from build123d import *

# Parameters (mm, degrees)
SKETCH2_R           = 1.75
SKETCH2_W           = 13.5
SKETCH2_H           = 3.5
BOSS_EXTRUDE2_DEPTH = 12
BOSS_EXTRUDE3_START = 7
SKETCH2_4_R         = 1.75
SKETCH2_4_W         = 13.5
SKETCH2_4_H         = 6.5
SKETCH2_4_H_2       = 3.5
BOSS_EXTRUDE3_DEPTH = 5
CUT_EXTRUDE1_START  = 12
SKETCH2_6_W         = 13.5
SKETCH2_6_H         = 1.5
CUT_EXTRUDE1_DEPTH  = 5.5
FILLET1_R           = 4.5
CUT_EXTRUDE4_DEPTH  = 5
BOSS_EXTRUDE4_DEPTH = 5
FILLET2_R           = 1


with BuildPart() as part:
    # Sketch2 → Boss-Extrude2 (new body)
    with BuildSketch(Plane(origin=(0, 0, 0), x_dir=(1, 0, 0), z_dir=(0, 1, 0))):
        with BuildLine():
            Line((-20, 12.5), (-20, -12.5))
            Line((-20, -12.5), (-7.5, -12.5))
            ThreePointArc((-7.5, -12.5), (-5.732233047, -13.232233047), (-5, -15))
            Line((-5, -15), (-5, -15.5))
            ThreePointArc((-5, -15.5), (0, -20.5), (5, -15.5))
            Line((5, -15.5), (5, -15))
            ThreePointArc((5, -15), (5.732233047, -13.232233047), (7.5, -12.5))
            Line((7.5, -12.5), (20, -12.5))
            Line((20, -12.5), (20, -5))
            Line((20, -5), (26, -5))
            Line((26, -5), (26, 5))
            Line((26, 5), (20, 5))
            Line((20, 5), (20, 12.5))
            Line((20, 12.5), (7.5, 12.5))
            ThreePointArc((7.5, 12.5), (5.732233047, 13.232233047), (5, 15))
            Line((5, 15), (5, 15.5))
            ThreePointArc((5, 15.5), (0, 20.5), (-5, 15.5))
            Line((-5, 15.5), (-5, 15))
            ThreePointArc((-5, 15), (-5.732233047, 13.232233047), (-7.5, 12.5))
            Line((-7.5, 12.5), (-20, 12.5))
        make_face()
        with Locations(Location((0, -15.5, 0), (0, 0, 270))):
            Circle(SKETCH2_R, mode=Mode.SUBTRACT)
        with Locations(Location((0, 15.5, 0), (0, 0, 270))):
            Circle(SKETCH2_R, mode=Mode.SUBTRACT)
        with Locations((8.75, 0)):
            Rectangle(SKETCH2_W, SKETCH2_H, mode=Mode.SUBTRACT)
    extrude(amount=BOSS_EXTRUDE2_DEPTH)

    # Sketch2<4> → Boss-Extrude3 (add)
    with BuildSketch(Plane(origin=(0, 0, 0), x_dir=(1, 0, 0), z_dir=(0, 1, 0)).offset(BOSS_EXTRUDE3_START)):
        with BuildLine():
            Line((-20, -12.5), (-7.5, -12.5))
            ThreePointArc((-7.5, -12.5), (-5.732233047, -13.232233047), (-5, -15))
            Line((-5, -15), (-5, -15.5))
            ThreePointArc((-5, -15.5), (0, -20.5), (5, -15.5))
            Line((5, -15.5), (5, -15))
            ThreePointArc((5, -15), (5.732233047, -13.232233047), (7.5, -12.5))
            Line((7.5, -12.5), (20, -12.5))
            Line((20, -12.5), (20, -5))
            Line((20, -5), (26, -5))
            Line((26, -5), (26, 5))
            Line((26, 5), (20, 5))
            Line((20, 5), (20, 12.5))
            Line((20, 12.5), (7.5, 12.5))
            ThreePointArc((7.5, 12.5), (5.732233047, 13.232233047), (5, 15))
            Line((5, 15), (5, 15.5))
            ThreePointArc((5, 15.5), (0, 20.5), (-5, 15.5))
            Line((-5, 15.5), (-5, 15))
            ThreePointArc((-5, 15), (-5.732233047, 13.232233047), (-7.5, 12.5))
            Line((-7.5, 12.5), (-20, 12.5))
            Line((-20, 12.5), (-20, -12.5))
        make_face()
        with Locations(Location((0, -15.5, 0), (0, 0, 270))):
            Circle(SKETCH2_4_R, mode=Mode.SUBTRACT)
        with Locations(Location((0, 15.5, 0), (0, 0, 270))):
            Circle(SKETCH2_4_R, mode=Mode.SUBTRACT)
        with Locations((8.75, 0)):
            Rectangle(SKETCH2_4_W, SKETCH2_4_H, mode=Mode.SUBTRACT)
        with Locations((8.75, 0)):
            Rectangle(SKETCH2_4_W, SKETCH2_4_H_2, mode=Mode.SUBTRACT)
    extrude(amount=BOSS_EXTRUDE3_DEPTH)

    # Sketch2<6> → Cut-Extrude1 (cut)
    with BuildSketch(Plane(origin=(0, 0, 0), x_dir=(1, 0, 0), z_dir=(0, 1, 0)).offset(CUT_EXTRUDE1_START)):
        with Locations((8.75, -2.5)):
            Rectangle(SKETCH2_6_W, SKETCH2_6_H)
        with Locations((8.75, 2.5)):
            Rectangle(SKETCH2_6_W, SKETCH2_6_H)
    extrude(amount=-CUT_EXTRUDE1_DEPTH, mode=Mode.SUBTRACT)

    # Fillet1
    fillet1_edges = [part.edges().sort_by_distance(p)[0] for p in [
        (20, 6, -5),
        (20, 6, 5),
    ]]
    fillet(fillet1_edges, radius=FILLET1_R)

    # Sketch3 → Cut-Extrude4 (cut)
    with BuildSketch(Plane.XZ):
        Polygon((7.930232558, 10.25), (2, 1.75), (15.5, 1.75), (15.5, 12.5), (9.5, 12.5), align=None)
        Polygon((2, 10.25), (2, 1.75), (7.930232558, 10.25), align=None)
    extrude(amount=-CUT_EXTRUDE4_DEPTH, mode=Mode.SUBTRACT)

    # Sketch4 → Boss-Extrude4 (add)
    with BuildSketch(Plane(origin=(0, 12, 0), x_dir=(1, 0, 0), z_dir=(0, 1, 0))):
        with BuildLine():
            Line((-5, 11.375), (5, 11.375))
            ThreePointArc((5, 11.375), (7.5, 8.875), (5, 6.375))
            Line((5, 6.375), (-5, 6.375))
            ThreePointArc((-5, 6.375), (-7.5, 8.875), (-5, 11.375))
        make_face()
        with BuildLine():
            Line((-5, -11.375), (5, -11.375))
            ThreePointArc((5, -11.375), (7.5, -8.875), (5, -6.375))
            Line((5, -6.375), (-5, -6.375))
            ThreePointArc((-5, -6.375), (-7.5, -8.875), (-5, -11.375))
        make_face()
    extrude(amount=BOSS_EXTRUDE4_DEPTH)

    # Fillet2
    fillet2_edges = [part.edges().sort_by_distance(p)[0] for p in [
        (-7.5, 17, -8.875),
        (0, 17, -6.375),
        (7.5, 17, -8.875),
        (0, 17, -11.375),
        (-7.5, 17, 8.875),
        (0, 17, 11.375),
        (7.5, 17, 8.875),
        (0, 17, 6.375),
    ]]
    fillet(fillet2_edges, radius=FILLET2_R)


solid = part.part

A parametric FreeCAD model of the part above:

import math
import FreeCAD as App
import Part
import Sketcher
from FreeCAD import Vector


def edges_at(feature, points):
    """Names of the edges that pass closest to the given points."""
    edges = feature.Shape.Edges
    near = lambda p: min(range(len(edges)), key=lambda i: edges[i].distToShape(Part.Vertex(*p))[0])
    return sorted({f"Edge{near(p) + 1}" for p in points})

doc = App.newDocument("Part")
body = doc.addObject("PartDesign::Body", "Body")

# Sketch on XZ plane
sketch1 = doc.addObject("Sketcher::SketchObject", "Sketch")
body.addObject(sketch1)
sketch1.AttachmentSupport = (doc.XZ_Plane, [""])
sketch1.MapMode = "FlatFace"
sketch1.addGeometry(Part.LineSegment(Vector(-20, -12.5, 0), Vector(-20, 12.5, 0)), False)
sketch1.addGeometry(Part.LineSegment(Vector(-20, 12.5, 0), Vector(-7.5, 12.5, 0)), False)
sketch1.addGeometry(Part.ArcOfCircle(Part.Circle(Vector(-7.5, 15, 0), Vector(0, 0, 1), 2.5), math.radians(-90), math.radians(0)), False)
sketch1.addGeometry(Part.LineSegment(Vector(-5, 15, 0), Vector(-5, 15.5, 0)), False)
sketch1.addGeometry(Part.ArcOfCircle(Part.Circle(Vector(0, 15.5, 0), Vector(0, 0, 1), 5), math.radians(0), math.radians(180)), False)
sketch1.addGeometry(Part.LineSegment(Vector(5, 15.5, 0), Vector(5, 15, 0)), False)
sketch1.addGeometry(Part.ArcOfCircle(Part.Circle(Vector(7.5, 15, 0), Vector(0, 0, 1), 2.5), math.radians(180), math.radians(270)), False)
sketch1.addGeometry(Part.LineSegment(Vector(7.5, 12.5, 0), Vector(20, 12.5, 0)), False)
sketch1.addGeometry(Part.LineSegment(Vector(20, 12.5, 0), Vector(20, 5, 0)), False)
sketch1.addGeometry(Part.LineSegment(Vector(20, 5, 0), Vector(26, 5, 0)), False)
sketch1.addGeometry(Part.LineSegment(Vector(26, 5, 0), Vector(26, -5, 0)), False)
sketch1.addGeometry(Part.LineSegment(Vector(26, -5, 0), Vector(20, -5, 0)), False)
sketch1.addGeometry(Part.LineSegment(Vector(20, -5, 0), Vector(20, -12.5, 0)), False)
sketch1.addGeometry(Part.LineSegment(Vector(20, -12.5, 0), Vector(7.5, -12.5, 0)), False)
sketch1.addGeometry(Part.ArcOfCircle(Part.Circle(Vector(7.5, -15, 0), Vector(0, 0, 1), 2.5), math.radians(90), math.radians(180)), False)
sketch1.addGeometry(Part.LineSegment(Vector(5, -15, 0), Vector(5, -15.5, 0)), False)
sketch1.addGeometry(Part.ArcOfCircle(Part.Circle(Vector(0, -15.5, 0), Vector(0, 0, 1), 5), math.radians(180), math.radians(360)), False)
sketch1.addGeometry(Part.LineSegment(Vector(-5, -15.5, 0), Vector(-5, -15, 0)), False)
sketch1.addGeometry(Part.ArcOfCircle(Part.Circle(Vector(-7.5, -15, 0), Vector(0, 0, 1), 2.5), math.radians(0), math.radians(90)), False)
sketch1.addGeometry(Part.LineSegment(Vector(-7.5, -12.5, 0), Vector(-20, -12.5, 0)), False)
sketch1.addGeometry(Part.Circle(Vector(0, 15.5, 0), Vector(0, 0, 1), 1.8), False)
sketch1.addGeometry(Part.Circle(Vector(0, -15.5, 0), Vector(0, 0, 1), 1.8), False)
sketch1.addGeometry(Part.LineSegment(Vector(15.5, 1.8, 0), Vector(2, 1.8, 0)), False)
sketch1.addGeometry(Part.LineSegment(Vector(2, 1.8, 0), Vector(2, -1.8, 0)), False)
sketch1.addGeometry(Part.LineSegment(Vector(2, -1.8, 0), Vector(15.5, -1.8, 0)), False)
sketch1.addGeometry(Part.LineSegment(Vector(15.5, -1.8, 0), Vector(15.5, 1.8, 0)), False)
sketch1.addConstraint(Sketcher.Constraint("Coincident", 0, 2, 1, 1))
sketch1.addConstraint(Sketcher.Constraint("Tangent", 1, 2, 2, 1))
sketch1.addConstraint(Sketcher.Constraint("Tangent", 2, 2, 3, 1))
sketch1.addConstraint(Sketcher.Constraint("Tangent", 3, 2, 4, 2))
sketch1.addConstraint(Sketcher.Constraint("Tangent", 4, 1, 5, 1))
sketch1.addConstraint(Sketcher.Constraint("Tangent", 5, 2, 6, 1))
sketch1.addConstraint(Sketcher.Constraint("Tangent", 6, 2, 7, 1))
sketch1.addConstraint(Sketcher.Constraint("Coincident", 7, 2, 8, 1))
sketch1.addConstraint(Sketcher.Constraint("Coincident", 8, 2, 9, 1))
sketch1.addConstraint(Sketcher.Constraint("Coincident", 9, 2, 10, 1))
sketch1.addConstraint(Sketcher.Constraint("Coincident", 10, 2, 11, 1))
sketch1.addConstraint(Sketcher.Constraint("Coincident", 11, 2, 12, 1))
sketch1.addConstraint(Sketcher.Constraint("Coincident", 12, 2, 13, 1))
sketch1.addConstraint(Sketcher.Constraint("Tangent", 13, 2, 14, 1))
sketch1.addConstraint(Sketcher.Constraint("Tangent", 14, 2, 15, 1))
sketch1.addConstraint(Sketcher.Constraint("Tangent", 15, 2, 16, 2))
sketch1.addConstraint(Sketcher.Constraint("Tangent", 16, 1, 17, 1))
sketch1.addConstraint(Sketcher.Constraint("Tangent", 17, 2, 18, 1))
sketch1.addConstraint(Sketcher.Constraint("Tangent", 18, 2, 19, 1))
sketch1.addConstraint(Sketcher.Constraint("Coincident", 19, 2, 0, 1))
sketch1.addConstraint(Sketcher.Constraint("Coincident", 22, 2, 23, 1))
sketch1.addConstraint(Sketcher.Constraint("Coincident", 23, 2, 24, 1))
sketch1.addConstraint(Sketcher.Constraint("Coincident", 24, 2, 25, 1))
sketch1.addConstraint(Sketcher.Constraint("Coincident", 25, 2, 22, 1))
sketch1.addConstraint(Sketcher.Constraint("Vertical", 0))
sketch1.addConstraint(Sketcher.Constraint("Horizontal", 1))
sketch1.addConstraint(Sketcher.Constraint("Vertical", 3))
sketch1.addConstraint(Sketcher.Constraint("Vertical", 5))
sketch1.addConstraint(Sketcher.Constraint("Horizontal", 7))
sketch1.addConstraint(Sketcher.Constraint("Vertical", 8))
sketch1.addConstraint(Sketcher.Constraint("Horizontal", 9))
sketch1.addConstraint(Sketcher.Constraint("Vertical", 10))
sketch1.addConstraint(Sketcher.Constraint("Horizontal", 11))
sketch1.addConstraint(Sketcher.Constraint("Vertical", 12))
sketch1.addConstraint(Sketcher.Constraint("Horizontal", 13))
sketch1.addConstraint(Sketcher.Constraint("Vertical", 15))
sketch1.addConstraint(Sketcher.Constraint("Vertical", 17))
sketch1.addConstraint(Sketcher.Constraint("Horizontal", 19))
sketch1.addConstraint(Sketcher.Constraint("Horizontal", 22))
sketch1.addConstraint(Sketcher.Constraint("Vertical", 23))
sketch1.addConstraint(Sketcher.Constraint("Horizontal", 24))
sketch1.addConstraint(Sketcher.Constraint("Vertical", 25))
sketch1.addConstraint(Sketcher.Constraint("Coincident", 20, 3, 4, 3))
sketch1.addConstraint(Sketcher.Constraint("Coincident", 21, 3, 16, 3))
sketch1.addConstraint(Sketcher.Constraint("Equal", 2, 6))
sketch1.addConstraint(Sketcher.Constraint("Equal", 6, 14))
sketch1.addConstraint(Sketcher.Constraint("Equal", 4, 16))
sketch1.addConstraint(Sketcher.Constraint("Equal", 14, 18))
sketch1.addConstraint(Sketcher.Constraint("Equal", 20, 21))
sketch1.addConstraint(Sketcher.Constraint("Symmetric", 2, 3, 14, 3, -1, 1))
sketch1.addConstraint(Sketcher.Constraint("Symmetric", 7, 2, 19, 2, -1, 1))
sketch1.addConstraint(Sketcher.Constraint("Symmetric", 2, 3, 6, 3, -2))
sketch1.addConstraint(Sketcher.Constraint("Symmetric", 8, 2, 11, 2, -1))
sketch1.addConstraint(Sketcher.Constraint("Equal", 5, 15))
sketch1.addConstraint(Sketcher.Constraint("Radius", 4, 5.0))
sketch1.addConstraint(Sketcher.Constraint("Diameter", 20, 3.5))
sketch1.addConstraint(Sketcher.Constraint("Radius", 2, 2.5))
sketch1.addConstraint(Sketcher.Constraint("DistanceX", 9, 1, 9, 2, 6.0))
sketch1.addConstraint(Sketcher.Constraint("DistanceY", 0, 1, 0, 2, 25.0))
sketch1.addConstraint(Sketcher.Constraint("DistanceY", 10, 2, 10, 1, 10.0))
sketch1.addConstraint(Sketcher.Constraint("DistanceX", 1, 1, 1, 2, 12.5))
sketch1.addConstraint(Sketcher.Constraint("DistanceX", 22, 2, 22, 1, 13.5))
sketch1.addConstraint(Sketcher.Constraint("DistanceY", 3, 1, 3, 2, 0.5))
sketch1.addConstraint(Sketcher.Constraint("DistanceY", 23, 2, 23, 1, 3.5))
sketch1.addConstraint(Sketcher.Constraint("DistanceX", -1, 1, 22, 2, 2.0))
sketch1.addConstraint(Sketcher.Constraint("DistanceY", -1, 1, 22, 2, 1.75))
pad1 = doc.addObject("PartDesign::Pad", "Pad")
body.addObject(pad1)
pad1.Profile = sketch1
pad1.Length = 12
pad1.Reversed = True

# Sketch on XZ plane
sketch2 = doc.addObject("Sketcher::SketchObject", "Sketch001")
body.addObject(sketch2)
sketch2.AttachmentSupport = (doc.XZ_Plane, [""])
sketch2.MapMode = "FlatFace"
sketch2.AttachmentOffset = App.Placement(Vector(0, 0, -7), App.Rotation())
sketch2.addGeometry(Part.LineSegment(Vector(-20, 12.5, 0), Vector(-7.5, 12.5, 0)), False)
sketch2.addGeometry(Part.ArcOfCircle(Part.Circle(Vector(-7.5, 15, 0), Vector(0, 0, 1), 2.5), math.radians(-90), math.radians(0)), False)
sketch2.addGeometry(Part.LineSegment(Vector(-5, 15, 0), Vector(-5, 15.5, 0)), False)
sketch2.addGeometry(Part.ArcOfCircle(Part.Circle(Vector(0, 15.5, 0), Vector(0, 0, 1), 5), math.radians(0), math.radians(180)), False)
sketch2.addGeometry(Part.LineSegment(Vector(5, 15.5, 0), Vector(5, 15, 0)), False)
sketch2.addGeometry(Part.ArcOfCircle(Part.Circle(Vector(7.5, 15, 0), Vector(0, 0, 1), 2.5), math.radians(180), math.radians(270)), False)
sketch2.addGeometry(Part.LineSegment(Vector(7.5, 12.5, 0), Vector(20, 12.5, 0)), False)
sketch2.addGeometry(Part.LineSegment(Vector(20, 12.5, 0), Vector(20, 5, 0)), False)
sketch2.addGeometry(Part.LineSegment(Vector(20, 5, 0), Vector(26, 5, 0)), False)
sketch2.addGeometry(Part.LineSegment(Vector(26, 5, 0), Vector(26, -5, 0)), False)
sketch2.addGeometry(Part.LineSegment(Vector(26, -5, 0), Vector(20, -5, 0)), False)
sketch2.addGeometry(Part.LineSegment(Vector(20, -5, 0), Vector(20, -12.5, 0)), False)
sketch2.addGeometry(Part.LineSegment(Vector(20, -12.5, 0), Vector(7.5, -12.5, 0)), False)
sketch2.addGeometry(Part.ArcOfCircle(Part.Circle(Vector(7.5, -15, 0), Vector(0, 0, 1), 2.5), math.radians(90), math.radians(180)), False)
sketch2.addGeometry(Part.LineSegment(Vector(5, -15, 0), Vector(5, -15.5, 0)), False)
sketch2.addGeometry(Part.ArcOfCircle(Part.Circle(Vector(0, -15.5, 0), Vector(0, 0, 1), 5), math.radians(180), math.radians(360)), False)
sketch2.addGeometry(Part.LineSegment(Vector(-5, -15.5, 0), Vector(-5, -15, 0)), False)
sketch2.addGeometry(Part.ArcOfCircle(Part.Circle(Vector(-7.5, -15, 0), Vector(0, 0, 1), 2.5), math.radians(0), math.radians(90)), False)
sketch2.addGeometry(Part.LineSegment(Vector(-7.5, -12.5, 0), Vector(-20, -12.5, 0)), False)
sketch2.addGeometry(Part.LineSegment(Vector(-20, -12.5, 0), Vector(-20, 12.5, 0)), False)
sketch2.addGeometry(Part.Circle(Vector(0, 15.5, 0), Vector(0, 0, 1), 1.8), False)
sketch2.addGeometry(Part.Circle(Vector(0, -15.5, 0), Vector(0, 0, 1), 1.8), False)
sketch2.addGeometry(Part.LineSegment(Vector(15.5, 3.2, 0), Vector(2, 3.2, 0)), False)
sketch2.addGeometry(Part.LineSegment(Vector(2, 3.2, 0), Vector(2, -3.2, 0)), False)
sketch2.addGeometry(Part.LineSegment(Vector(2, -3.2, 0), Vector(15.5, -3.2, 0)), False)
sketch2.addGeometry(Part.LineSegment(Vector(15.5, -3.2, 0), Vector(15.5, 3.2, 0)), False)
sketch2.addConstraint(Sketcher.Constraint("Tangent", 0, 2, 1, 1))
sketch2.addConstraint(Sketcher.Constraint("Tangent", 1, 2, 2, 1))
sketch2.addConstraint(Sketcher.Constraint("Tangent", 2, 2, 3, 2))
sketch2.addConstraint(Sketcher.Constraint("Tangent", 3, 1, 4, 1))
sketch2.addConstraint(Sketcher.Constraint("Tangent", 4, 2, 5, 1))
sketch2.addConstraint(Sketcher.Constraint("Tangent", 5, 2, 6, 1))
sketch2.addConstraint(Sketcher.Constraint("Coincident", 6, 2, 7, 1))
sketch2.addConstraint(Sketcher.Constraint("Coincident", 7, 2, 8, 1))
sketch2.addConstraint(Sketcher.Constraint("Coincident", 8, 2, 9, 1))
sketch2.addConstraint(Sketcher.Constraint("Coincident", 9, 2, 10, 1))
sketch2.addConstraint(Sketcher.Constraint("Coincident", 10, 2, 11, 1))
sketch2.addConstraint(Sketcher.Constraint("Coincident", 11, 2, 12, 1))
sketch2.addConstraint(Sketcher.Constraint("Tangent", 12, 2, 13, 1))
sketch2.addConstraint(Sketcher.Constraint("Tangent", 13, 2, 14, 1))
sketch2.addConstraint(Sketcher.Constraint("Tangent", 14, 2, 15, 2))
sketch2.addConstraint(Sketcher.Constraint("Tangent", 15, 1, 16, 1))
sketch2.addConstraint(Sketcher.Constraint("Tangent", 16, 2, 17, 1))
sketch2.addConstraint(Sketcher.Constraint("Tangent", 17, 2, 18, 1))
sketch2.addConstraint(Sketcher.Constraint("Coincident", 18, 2, 19, 1))
sketch2.addConstraint(Sketcher.Constraint("Coincident", 19, 2, 0, 1))
sketch2.addConstraint(Sketcher.Constraint("Coincident", 22, 2, 23, 1))
sketch2.addConstraint(Sketcher.Constraint("Coincident", 23, 2, 24, 1))
sketch2.addConstraint(Sketcher.Constraint("Coincident", 24, 2, 25, 1))
sketch2.addConstraint(Sketcher.Constraint("Coincident", 25, 2, 22, 1))
sketch2.addConstraint(Sketcher.Constraint("Horizontal", 0))
sketch2.addConstraint(Sketcher.Constraint("Vertical", 2))
sketch2.addConstraint(Sketcher.Constraint("Vertical", 4))
sketch2.addConstraint(Sketcher.Constraint("Horizontal", 6))
sketch2.addConstraint(Sketcher.Constraint("Vertical", 7))
sketch2.addConstraint(Sketcher.Constraint("Horizontal", 8))
sketch2.addConstraint(Sketcher.Constraint("Vertical", 9))
sketch2.addConstraint(Sketcher.Constraint("Horizontal", 10))
sketch2.addConstraint(Sketcher.Constraint("Vertical", 11))
sketch2.addConstraint(Sketcher.Constraint("Horizontal", 12))
sketch2.addConstraint(Sketcher.Constraint("Vertical", 14))
sketch2.addConstraint(Sketcher.Constraint("Vertical", 16))
sketch2.addConstraint(Sketcher.Constraint("Horizontal", 18))
sketch2.addConstraint(Sketcher.Constraint("Vertical", 19))
sketch2.addConstraint(Sketcher.Constraint("Horizontal", 22))
sketch2.addConstraint(Sketcher.Constraint("Vertical", 23))
sketch2.addConstraint(Sketcher.Constraint("Horizontal", 24))
sketch2.addConstraint(Sketcher.Constraint("Vertical", 25))
sketch2.addConstraint(Sketcher.Constraint("Coincident", 20, 3, 3, 3))
sketch2.addConstraint(Sketcher.Constraint("Coincident", 21, 3, 15, 3))
sketch2.addConstraint(Sketcher.Constraint("Equal", 1, 5))
sketch2.addConstraint(Sketcher.Constraint("Equal", 5, 13))
sketch2.addConstraint(Sketcher.Constraint("Equal", 3, 15))
sketch2.addConstraint(Sketcher.Constraint("Equal", 13, 17))
sketch2.addConstraint(Sketcher.Constraint("Equal", 20, 21))
sketch2.addConstraint(Sketcher.Constraint("Symmetric", 1, 3, 13, 3, -1, 1))
sketch2.addConstraint(Sketcher.Constraint("Symmetric", 6, 2, 18, 2, -1, 1))
sketch2.addConstraint(Sketcher.Constraint("Symmetric", 1, 3, 5, 3, -2))
sketch2.addConstraint(Sketcher.Constraint("Symmetric", 7, 2, 10, 2, -1))
sketch2.addConstraint(Sketcher.Constraint("Equal", 4, 14))
sketch2.addConstraint(Sketcher.Constraint("Radius", 3, 5.0))
sketch2.addConstraint(Sketcher.Constraint("Diameter", 20, 3.5))
sketch2.addConstraint(Sketcher.Constraint("Radius", 1, 2.5))
sketch2.addConstraint(Sketcher.Constraint("DistanceX", 8, 1, 8, 2, 6.0))
sketch2.addConstraint(Sketcher.Constraint("DistanceY", 9, 2, 9, 1, 10.0))
sketch2.addConstraint(Sketcher.Constraint("DistanceY", 19, 1, 19, 2, 25.0))
sketch2.addConstraint(Sketcher.Constraint("DistanceX", 0, 1, 0, 2, 12.5))
sketch2.addConstraint(Sketcher.Constraint("DistanceX", 22, 2, 22, 1, 13.5))
sketch2.addConstraint(Sketcher.Constraint("DistanceY", 2, 1, 2, 2, 0.5))
sketch2.addConstraint(Sketcher.Constraint("DistanceY", 23, 2, 23, 1, 6.5))
sketch2.addConstraint(Sketcher.Constraint("DistanceX", -1, 1, 22, 2, 2.0))
sketch2.addConstraint(Sketcher.Constraint("DistanceY", -1, 1, 22, 2, 3.25))
pad2 = doc.addObject("PartDesign::Pad", "Pad001")
body.addObject(pad2)
pad2.Profile = sketch2
pad2.Length = 5
pad2.Reversed = True

# Sketch on XZ plane
sketch3 = doc.addObject("Sketcher::SketchObject", "Sketch002")
body.addObject(sketch3)
sketch3.AttachmentSupport = (doc.XZ_Plane, [""])
sketch3.MapMode = "FlatFace"
sketch3.AttachmentOffset = App.Placement(Vector(0, 0, -12), App.Rotation())
sketch3.addGeometry(Part.LineSegment(Vector(2, 1.8, 0), Vector(2, 3.2, 0)), False)
sketch3.addGeometry(Part.LineSegment(Vector(2, 3.2, 0), Vector(15.5, 3.2, 0)), False)
sketch3.addGeometry(Part.LineSegment(Vector(15.5, 3.2, 0), Vector(15.5, 1.8, 0)), False)
sketch3.addGeometry(Part.LineSegment(Vector(15.5, 1.8, 0), Vector(2, 1.8, 0)), False)
sketch3.addGeometry(Part.LineSegment(Vector(2, -3.2, 0), Vector(2, -1.8, 0)), False)
sketch3.addGeometry(Part.LineSegment(Vector(2, -1.8, 0), Vector(15.5, -1.8, 0)), False)
sketch3.addGeometry(Part.LineSegment(Vector(15.5, -1.8, 0), Vector(15.5, -3.2, 0)), False)
sketch3.addGeometry(Part.LineSegment(Vector(15.5, -3.2, 0), Vector(2, -3.2, 0)), False)
sketch3.addConstraint(Sketcher.Constraint("Coincident", 0, 2, 1, 1))
sketch3.addConstraint(Sketcher.Constraint("Coincident", 1, 2, 2, 1))
sketch3.addConstraint(Sketcher.Constraint("Coincident", 2, 2, 3, 1))
sketch3.addConstraint(Sketcher.Constraint("Coincident", 3, 2, 0, 1))
sketch3.addConstraint(Sketcher.Constraint("Coincident", 4, 2, 5, 1))
sketch3.addConstraint(Sketcher.Constraint("Coincident", 5, 2, 6, 1))
sketch3.addConstraint(Sketcher.Constraint("Coincident", 6, 2, 7, 1))
sketch3.addConstraint(Sketcher.Constraint("Coincident", 7, 2, 4, 1))
sketch3.addConstraint(Sketcher.Constraint("Vertical", 0))
sketch3.addConstraint(Sketcher.Constraint("Horizontal", 1))
sketch3.addConstraint(Sketcher.Constraint("Vertical", 2))
sketch3.addConstraint(Sketcher.Constraint("Horizontal", 3))
sketch3.addConstraint(Sketcher.Constraint("Vertical", 4))
sketch3.addConstraint(Sketcher.Constraint("Horizontal", 5))
sketch3.addConstraint(Sketcher.Constraint("Vertical", 6))
sketch3.addConstraint(Sketcher.Constraint("Horizontal", 7))
sketch3.addConstraint(Sketcher.Constraint("Symmetric", 3, 2, 4, 2, -1))
sketch3.addConstraint(Sketcher.Constraint("Symmetric", 1, 2, 6, 2, -1))
sketch3.addConstraint(Sketcher.Constraint("DistanceX", 1, 1, 1, 2, 13.5))
sketch3.addConstraint(Sketcher.Constraint("DistanceY", 0, 1, 0, 2, 1.5))
sketch3.addConstraint(Sketcher.Constraint("DistanceX", -1, 1, 0, 2, 2.0))
sketch3.addConstraint(Sketcher.Constraint("DistanceY", 4, 2, 0, 2, 5.0))
pocket1 = doc.addObject("PartDesign::Pocket", "Pocket")
body.addObject(pocket1)
pocket1.Profile = sketch3
pocket1.Length = 5.5
pocket1.Reversed = True
doc.recompute()

fillet = doc.addObject("PartDesign::Fillet", "Fillet")
body.addObject(fillet)
fillet.Base = (pocket1, edges_at(pocket1, [(20, 6, -5), (20, 6, 5)]))
fillet.Radius = 4.5

# Sketch on XZ plane
sketch4 = doc.addObject("Sketcher::SketchObject", "Sketch003")
body.addObject(sketch4)
sketch4.AttachmentSupport = (doc.XZ_Plane, [""])
sketch4.MapMode = "FlatFace"
sketch4.addGeometry(Part.LineSegment(Vector(2, 1.8, 0), Vector(15.5, 1.8, 0)), False)
sketch4.addGeometry(Part.LineSegment(Vector(15.5, 1.8, 0), Vector(15.5, 12.5, 0)), False)
sketch4.addGeometry(Part.LineSegment(Vector(15.5, 12.5, 0), Vector(9.5, 12.5, 0)), False)
sketch4.addGeometry(Part.LineSegment(Vector(9.5, 12.5, 0), Vector(7.9, 10.2, 0)), False)
sketch4.addGeometry(Part.LineSegment(Vector(7.9, 10.2, 0), Vector(2, 10.2, 0)), False)
sketch4.addGeometry(Part.LineSegment(Vector(2, 10.2, 0), Vector(2, 1.8, 0)), False)
sketch4.addConstraint(Sketcher.Constraint("Coincident", 0, 2, 1, 1))
sketch4.addConstraint(Sketcher.Constraint("Coincident", 1, 2, 2, 1))
sketch4.addConstraint(Sketcher.Constraint("Coincident", 2, 2, 3, 1))
sketch4.addConstraint(Sketcher.Constraint("Coincident", 3, 2, 4, 1))
sketch4.addConstraint(Sketcher.Constraint("Coincident", 4, 2, 5, 1))
sketch4.addConstraint(Sketcher.Constraint("Coincident", 5, 2, 0, 1))
sketch4.addConstraint(Sketcher.Constraint("Horizontal", 0))
sketch4.addConstraint(Sketcher.Constraint("Vertical", 1))
sketch4.addConstraint(Sketcher.Constraint("Horizontal", 2))
sketch4.addConstraint(Sketcher.Constraint("Horizontal", 4))
sketch4.addConstraint(Sketcher.Constraint("Vertical", 5))
sketch4.addConstraint(Sketcher.Constraint("DistanceX", 2, 2, 2, 1, 6.0))
sketch4.addConstraint(Sketcher.Constraint("DistanceX", 0, 1, 0, 2, 13.5))
sketch4.addConstraint(Sketcher.Constraint("DistanceY", 5, 2, 5, 1, 8.5))
sketch4.addConstraint(Sketcher.Constraint("DistanceX", -1, 1, 4, 2, 2.0))
sketch4.addConstraint(Sketcher.Constraint("DistanceY", 1, 1, 1, 2, 10.75))
sketch4.addConstraint(Sketcher.Constraint("DistanceY", -1, 1, 1, 2, 12.5))
sketch4.addConstraint(Sketcher.Constraint("DistanceX", 4, 2, 4, 1, 5.930233))
pocket2 = doc.addObject("PartDesign::Pocket", "Pocket001")
body.addObject(pocket2)
pocket2.Profile = sketch4
pocket2.Length = 5

# Sketch on XZ plane
sketch5 = doc.addObject("Sketcher::SketchObject", "Sketch004")
body.addObject(sketch5)
sketch5.AttachmentSupport = (doc.XZ_Plane, [""])
sketch5.MapMode = "FlatFace"
sketch5.AttachmentOffset = App.Placement(Vector(0, 0, -12), App.Rotation())
sketch5.addGeometry(Part.LineSegment(Vector(5, -11.4, 0), Vector(-5, -11.4, 0)), False)
sketch5.addGeometry(Part.ArcOfCircle(Part.Circle(Vector(-5, -8.9, 0), Vector(0, 0, 1), 2.5), math.radians(90), math.radians(270)), False)
sketch5.addGeometry(Part.LineSegment(Vector(-5, -6.4, 0), Vector(5, -6.4, 0)), False)
sketch5.addGeometry(Part.ArcOfCircle(Part.Circle(Vector(5, -8.9, 0), Vector(0, 0, 1), 2.5), math.radians(-90), math.radians(90)), False)
sketch5.addGeometry(Part.LineSegment(Vector(-5, 11.4, 0), Vector(5, 11.4, 0)), False)
sketch5.addGeometry(Part.ArcOfCircle(Part.Circle(Vector(5, 8.9, 0), Vector(0, 0, 1), 2.5), math.radians(-90), math.radians(90)), False)
sketch5.addGeometry(Part.LineSegment(Vector(5, 6.4, 0), Vector(-5, 6.4, 0)), False)
sketch5.addGeometry(Part.ArcOfCircle(Part.Circle(Vector(-5, 8.9, 0), Vector(0, 0, 1), 2.5), math.radians(90), math.radians(270)), False)
sketch5.addConstraint(Sketcher.Constraint("Tangent", 0, 2, 1, 2))
sketch5.addConstraint(Sketcher.Constraint("Tangent", 1, 1, 2, 1))
sketch5.addConstraint(Sketcher.Constraint("Tangent", 2, 2, 3, 2))
sketch5.addConstraint(Sketcher.Constraint("Tangent", 3, 1, 0, 1))
sketch5.addConstraint(Sketcher.Constraint("Tangent", 4, 2, 5, 2))
sketch5.addConstraint(Sketcher.Constraint("Tangent", 5, 1, 6, 1))
sketch5.addConstraint(Sketcher.Constraint("Tangent", 6, 2, 7, 2))
sketch5.addConstraint(Sketcher.Constraint("Tangent", 7, 1, 4, 1))
sketch5.addConstraint(Sketcher.Constraint("Horizontal", 0))
sketch5.addConstraint(Sketcher.Constraint("Horizontal", 2))
sketch5.addConstraint(Sketcher.Constraint("Horizontal", 4))
sketch5.addConstraint(Sketcher.Constraint("Horizontal", 6))
sketch5.addConstraint(Sketcher.Constraint("Equal", 3, 5))
sketch5.addConstraint(Sketcher.Constraint("Symmetric", 1, 3, 5, 3, -1, 1))
sketch5.addConstraint(Sketcher.Constraint("Vertical", 3, 3, 5, 3))
sketch5.addConstraint(Sketcher.Constraint("Vertical", 1, 3, 7, 3))
sketch5.addConstraint(Sketcher.Constraint("Radius", 1, 2.5))
sketch5.addConstraint(Sketcher.Constraint("DistanceX", 0, 2, 0, 1, 10.0))
sketch5.addConstraint(Sketcher.Constraint("DistanceY", 3, 3, 5, 3, 17.75))
pad3 = doc.addObject("PartDesign::Pad", "Pad002")
body.addObject(pad3)
pad3.Profile = sketch5
pad3.Length = 5
pad3.Reversed = True
doc.recompute()

fillet2 = doc.addObject("PartDesign::Fillet", "Fillet001")
body.addObject(fillet2)
fillet2.Base = (pad3, edges_at(pad3, [
    (-7.5, 17, -8.875),
    (0, 17, -6.375),
    (7.5, 17, -8.875),
    (0, 17, -11.375),
    (-7.5, 17, 8.875),
    (0, 17, 11.375),
    (7.5, 17, 8.875),
    (0, 17, 6.375),
]))
fillet2.Radius = 1

doc.recompute()
